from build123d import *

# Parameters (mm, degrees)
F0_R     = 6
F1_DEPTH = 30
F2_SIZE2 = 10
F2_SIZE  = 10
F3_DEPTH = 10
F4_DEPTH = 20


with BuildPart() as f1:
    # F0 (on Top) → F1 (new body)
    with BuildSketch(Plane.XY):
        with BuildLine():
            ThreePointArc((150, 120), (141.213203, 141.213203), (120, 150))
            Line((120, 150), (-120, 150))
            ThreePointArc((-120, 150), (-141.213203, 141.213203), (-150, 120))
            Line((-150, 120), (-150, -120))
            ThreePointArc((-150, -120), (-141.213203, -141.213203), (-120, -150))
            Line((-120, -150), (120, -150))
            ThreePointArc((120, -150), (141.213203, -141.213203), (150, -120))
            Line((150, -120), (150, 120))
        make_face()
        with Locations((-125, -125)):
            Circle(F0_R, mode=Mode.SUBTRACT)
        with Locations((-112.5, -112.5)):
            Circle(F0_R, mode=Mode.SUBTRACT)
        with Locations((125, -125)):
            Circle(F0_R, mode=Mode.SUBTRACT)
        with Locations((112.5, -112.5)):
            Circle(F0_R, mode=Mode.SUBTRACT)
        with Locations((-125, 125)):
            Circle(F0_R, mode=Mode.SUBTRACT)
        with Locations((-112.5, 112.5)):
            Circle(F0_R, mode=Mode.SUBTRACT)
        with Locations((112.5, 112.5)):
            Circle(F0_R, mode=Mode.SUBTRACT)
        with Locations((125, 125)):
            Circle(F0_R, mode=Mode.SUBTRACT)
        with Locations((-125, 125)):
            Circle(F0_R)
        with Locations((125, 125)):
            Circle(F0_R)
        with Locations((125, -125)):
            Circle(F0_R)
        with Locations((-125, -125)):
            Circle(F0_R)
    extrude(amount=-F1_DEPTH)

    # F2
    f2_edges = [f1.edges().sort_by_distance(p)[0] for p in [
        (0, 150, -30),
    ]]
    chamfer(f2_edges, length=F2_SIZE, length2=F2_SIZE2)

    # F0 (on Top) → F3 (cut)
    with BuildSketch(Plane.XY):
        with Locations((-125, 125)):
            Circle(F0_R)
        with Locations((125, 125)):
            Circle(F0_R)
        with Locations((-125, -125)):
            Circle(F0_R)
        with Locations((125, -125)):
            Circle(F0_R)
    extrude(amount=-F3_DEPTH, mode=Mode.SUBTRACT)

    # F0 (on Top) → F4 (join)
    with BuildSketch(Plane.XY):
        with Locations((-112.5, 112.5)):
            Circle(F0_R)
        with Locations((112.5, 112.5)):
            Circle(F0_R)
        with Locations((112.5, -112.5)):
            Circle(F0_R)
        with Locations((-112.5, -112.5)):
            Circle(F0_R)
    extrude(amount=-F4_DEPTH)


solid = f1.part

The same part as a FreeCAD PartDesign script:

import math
import FreeCAD as App
import Part
import Sketcher


def edges_at(feature, points):
    """Names of the edges that pass closest to the given points."""
    edges = feature.Shape.Edges
    near = lambda p: min(range(len(edges)), key=lambda i: edges[i].distToShape(Part.Vertex(*p))[0])
    return sorted({f"Edge{near(p) + 1}" for p in points})

doc = App.newDocument("Part")
body = doc.addObject("PartDesign::Body", "Body")

sketch1 = body.newObject("Sketcher::SketchObject", "Sketch")
sketch1.AttachmentSupport = (doc.getObject("XY_Plane"), [""])
sketch1.MapMode = "FlatFace"
sketch1.addGeometry(Part.ArcOfCircle(Part.Circle(App.Vector(120, 120, 0), App.Vector(0, 0, 1), 30), math.radians(0), math.radians(90)), False)
sketch1.addGeometry(Part.LineSegment(App.Vector(120, 150, 0), App.Vector(-120, 150, 0)), False)
sketch1.addGeometry(Part.ArcOfCircle(Part.Circle(App.Vector(-120, 120, 0), App.Vector(0, 0, 1), 30), math.radians(90), math.radians(180)), False)
sketch1.addGeometry(Part.LineSegment(App.Vector(-150, 120, 0), App.Vector(-150, -120, 0)), False)
sketch1.addGeometry(Part.ArcOfCircle(Part.Circle(App.Vector(-120, -120, 0), App.Vector(0, 0, 1), 30), math.radians(-180), math.radians(-90)), False)
sketch1.addGeometry(Part.LineSegment(App.Vector(-120, -150, 0), App.Vector(120, -150, 0)), False)
sketch1.addGeometry(Part.ArcOfCircle(Part.Circle(App.Vector(120, -120, 0), App.Vector(0, 0, 1), 30), math.radians(-90), math.radians(0)), False)
sketch1.addGeometry(Part.LineSegment(App.Vector(150, -120, 0), App.Vector(150, 120, 0)), False)
sketch1.addGeometry(Part.Circle(App.Vector(-112, -112, 0), App.Vector(0, 0, 1), 6), False)
sketch1.addGeometry(Part.Circle(App.Vector(112, -112, 0), App.Vector(0, 0, 1), 6), False)
sketch1.addGeometry(Part.Circle(App.Vector(-112, 112, 0), App.Vector(0, 0, 1), 6), False)
sketch1.addGeometry(Part.Circle(App.Vector(112, 112, 0), App.Vector(0, 0, 1), 6), False)
sketch1.addConstraint(Sketcher.Constraint("Tangent", 0, 2, 1, 1))
sketch1.addConstraint(Sketcher.Constraint("Tangent", 1, 2, 2, 1))
sketch1.addConstraint(Sketcher.Constraint("Tangent", 2, 2, 3, 1))
sketch1.addConstraint(Sketcher.Constraint("Tangent", 3, 2, 4, 1))
sketch1.addConstraint(Sketcher.Constraint("Tangent", 4, 2, 5, 1))
sketch1.addConstraint(Sketcher.Constraint("Tangent", 5, 2, 6, 1))
sketch1.addConstraint(Sketcher.Constraint("Tangent", 6, 2, 7, 1))
sketch1.addConstraint(Sketcher.Constraint("Tangent", 7, 2, 0, 1))
sketch1.addConstraint(Sketcher.Constraint("Horizontal", 1))
sketch1.addConstraint(Sketcher.Constraint("Vertical", 3))
sketch1.addConstraint(Sketcher.Constraint("Horizontal", 5))
sketch1.addConstraint(Sketcher.Constraint("Vertical", 7))
sketch1.addConstraint(Sketcher.Constraint("Equal", 0, 2))
sketch1.addConstraint(Sketcher.Constraint("Equal", 2, 4))
sketch1.addConstraint(Sketcher.Constraint("Equal", 4, 6))
sketch1.addConstraint(Sketcher.Constraint("Equal", 8, 9))
sketch1.addConstraint(Sketcher.Constraint("Equal", 9, 10))
sketch1.addConstraint(Sketcher.Constraint("Equal", 10, 11))
sketch1.addConstraint(Sketcher.Constraint("Symmetric", 0, 3, 4, 3, -1, 1))
sketch1.addConstraint(Sketcher.Constraint("Symmetric", 9, 3, 10, 3, -1, 1))
sketch1.addConstraint(Sketcher.Constraint("Symmetric", 8, 3, 11, 3, -1, 1))
sketch1.addConstraint(Sketcher.Constraint("Symmetric", 8, 3, 9, 3, -2))
sketch1.addConstraint(Sketcher.Constraint("Equal", 5, 3))
sketch1.addConstraint(Sketcher.Constraint("Diameter", 8, 12.0))
sketch1.addConstraint(Sketcher.Constraint("Radius", 0, 30.000001))
sketch1.addConstraint(Sketcher.Constraint("DistanceX", 1, 2, 1, 1, 240.0))
sketch1.addConstraint(Sketcher.Constraint("DistanceX", 8, 3, 9, 3, 225.0))
sketch1.addConstraint(Sketcher.Constraint("DistanceY", 8, 3, 10, 3, 225.0))
pad1 = body.newObject("PartDesign::Pad", "Pad")
pad1.Profile = sketch1
pad1.Length = 30
pad1.Reversed = True
doc.recompute()

chamfer = body.newObject("PartDesign::Chamfer", "Chamfer")
chamfer.Base = (pad1, edges_at(pad1, [(0, 150, -30)]))
chamfer.ChamferType = "Two distances"
chamfer.Size = 10
chamfer.Size2 = 10

sketch2 = body.newObject("Sketcher::SketchObject", "Sketch001")
sketch2.AttachmentSupport = (doc.getObject("XY_Plane"), [""])
sketch2.MapMode = "FlatFace"
sketch2.addGeometry(Part.Circle(App.Vector(-125, 125, 0), App.Vector(0, 0, 1), 6), False)
sketch2.addGeometry(Part.Circle(App.Vector(125, 125, 0), App.Vector(0, 0, 1), 6), False)
sketch2.addGeometry(Part.Circle(App.Vector(-125, -125, 0), App.Vector(0, 0, 1), 6), False)
sketch2.addGeometry(Part.Circle(App.Vector(125, -125, 0), App.Vector(0, 0, 1), 6), False)
sketch2.addConstraint(Sketcher.Constraint("Equal", 0, 1))
sketch2.addConstraint(Sketcher.Constraint("Equal", 1, 2))
sketch2.addConstraint(Sketcher.Constraint("Equal", 2, 3))
sketch2.addConstraint(Sketcher.Constraint("Symmetric", 1, 3, 2, 3, -1, 1))
sketch2.addConstraint(Sketcher.Constraint("Symmetric", 0, 3, 3, 3, -1, 1))
sketch2.addConstraint(Sketcher.Constraint("Symmetric", 0, 3, 1, 3, -2))
sketch2.addConstraint(Sketcher.Constraint("Diameter", 0, 12.0))
sketch2.addConstraint(Sketcher.Constraint("DistanceX", 0, 3, -1, 1, 125.0))
sketch2.addConstraint(Sketcher.Constraint("DistanceY", -1, 1, 0, 3, 125.0))
pocket1 = body.newObject("PartDesign::Pocket", "Pocket")
pocket1.Profile = sketch2
pocket1.Length = 10

sketch3 = body.newObject("Sketcher::SketchObject", "Sketch002")
sketch3.AttachmentSupport = (doc.getObject("XY_Plane"), [""])
sketch3.MapMode = "FlatFace"
sketch3.addGeometry(Part.Circle(App.Vector(-112, 112, 0), App.Vector(0, 0, 1), 6), False)
sketch3.addGeometry(Part.Circle(App.Vector(112, 112, 0), App.Vector(0, 0, 1), 6), False)
sketch3.addGeometry(Part.Circle(App.Vector(112, -112, 0), App.Vector(0, 0, 1), 6), False)
sketch3.addGeometry(Part.Circle(App.Vector(-112, -112, 0), App.Vector(0, 0, 1), 6), False)
sketch3.addConstraint(Sketcher.Constraint("Equal", 0, 1))
sketch3.addConstraint(Sketcher.Constraint("Equal", 1, 2))
sketch3.addConstraint(Sketcher.Constraint("Equal", 2, 3))
sketch3.addConstraint(Sketcher.Constraint("Symmetric", 0, 3, 2, 3, -1, 1))
sketch3.addConstraint(Sketcher.Constraint("Symmetric", 1, 3, 3, 3, -1, 1))
sketch3.addConstraint(Sketcher.Constraint("Symmetric", 0, 3, 1, 3, -2))
sketch3.addConstraint(Sketcher.Constraint("Diameter", 0, 12.0))
sketch3.addConstraint(Sketcher.Constraint("DistanceX", 0, 3, 1, 3, 225.0))
sketch3.addConstraint(Sketcher.Constraint("DistanceY", 2, 3, 1, 3, 225.0))
pad2 = body.newObject("PartDesign::Pad", "Pad001")
pad2.Profile = sketch3
pad2.Length = 20
pad2.Reversed = True

doc.recompute()
